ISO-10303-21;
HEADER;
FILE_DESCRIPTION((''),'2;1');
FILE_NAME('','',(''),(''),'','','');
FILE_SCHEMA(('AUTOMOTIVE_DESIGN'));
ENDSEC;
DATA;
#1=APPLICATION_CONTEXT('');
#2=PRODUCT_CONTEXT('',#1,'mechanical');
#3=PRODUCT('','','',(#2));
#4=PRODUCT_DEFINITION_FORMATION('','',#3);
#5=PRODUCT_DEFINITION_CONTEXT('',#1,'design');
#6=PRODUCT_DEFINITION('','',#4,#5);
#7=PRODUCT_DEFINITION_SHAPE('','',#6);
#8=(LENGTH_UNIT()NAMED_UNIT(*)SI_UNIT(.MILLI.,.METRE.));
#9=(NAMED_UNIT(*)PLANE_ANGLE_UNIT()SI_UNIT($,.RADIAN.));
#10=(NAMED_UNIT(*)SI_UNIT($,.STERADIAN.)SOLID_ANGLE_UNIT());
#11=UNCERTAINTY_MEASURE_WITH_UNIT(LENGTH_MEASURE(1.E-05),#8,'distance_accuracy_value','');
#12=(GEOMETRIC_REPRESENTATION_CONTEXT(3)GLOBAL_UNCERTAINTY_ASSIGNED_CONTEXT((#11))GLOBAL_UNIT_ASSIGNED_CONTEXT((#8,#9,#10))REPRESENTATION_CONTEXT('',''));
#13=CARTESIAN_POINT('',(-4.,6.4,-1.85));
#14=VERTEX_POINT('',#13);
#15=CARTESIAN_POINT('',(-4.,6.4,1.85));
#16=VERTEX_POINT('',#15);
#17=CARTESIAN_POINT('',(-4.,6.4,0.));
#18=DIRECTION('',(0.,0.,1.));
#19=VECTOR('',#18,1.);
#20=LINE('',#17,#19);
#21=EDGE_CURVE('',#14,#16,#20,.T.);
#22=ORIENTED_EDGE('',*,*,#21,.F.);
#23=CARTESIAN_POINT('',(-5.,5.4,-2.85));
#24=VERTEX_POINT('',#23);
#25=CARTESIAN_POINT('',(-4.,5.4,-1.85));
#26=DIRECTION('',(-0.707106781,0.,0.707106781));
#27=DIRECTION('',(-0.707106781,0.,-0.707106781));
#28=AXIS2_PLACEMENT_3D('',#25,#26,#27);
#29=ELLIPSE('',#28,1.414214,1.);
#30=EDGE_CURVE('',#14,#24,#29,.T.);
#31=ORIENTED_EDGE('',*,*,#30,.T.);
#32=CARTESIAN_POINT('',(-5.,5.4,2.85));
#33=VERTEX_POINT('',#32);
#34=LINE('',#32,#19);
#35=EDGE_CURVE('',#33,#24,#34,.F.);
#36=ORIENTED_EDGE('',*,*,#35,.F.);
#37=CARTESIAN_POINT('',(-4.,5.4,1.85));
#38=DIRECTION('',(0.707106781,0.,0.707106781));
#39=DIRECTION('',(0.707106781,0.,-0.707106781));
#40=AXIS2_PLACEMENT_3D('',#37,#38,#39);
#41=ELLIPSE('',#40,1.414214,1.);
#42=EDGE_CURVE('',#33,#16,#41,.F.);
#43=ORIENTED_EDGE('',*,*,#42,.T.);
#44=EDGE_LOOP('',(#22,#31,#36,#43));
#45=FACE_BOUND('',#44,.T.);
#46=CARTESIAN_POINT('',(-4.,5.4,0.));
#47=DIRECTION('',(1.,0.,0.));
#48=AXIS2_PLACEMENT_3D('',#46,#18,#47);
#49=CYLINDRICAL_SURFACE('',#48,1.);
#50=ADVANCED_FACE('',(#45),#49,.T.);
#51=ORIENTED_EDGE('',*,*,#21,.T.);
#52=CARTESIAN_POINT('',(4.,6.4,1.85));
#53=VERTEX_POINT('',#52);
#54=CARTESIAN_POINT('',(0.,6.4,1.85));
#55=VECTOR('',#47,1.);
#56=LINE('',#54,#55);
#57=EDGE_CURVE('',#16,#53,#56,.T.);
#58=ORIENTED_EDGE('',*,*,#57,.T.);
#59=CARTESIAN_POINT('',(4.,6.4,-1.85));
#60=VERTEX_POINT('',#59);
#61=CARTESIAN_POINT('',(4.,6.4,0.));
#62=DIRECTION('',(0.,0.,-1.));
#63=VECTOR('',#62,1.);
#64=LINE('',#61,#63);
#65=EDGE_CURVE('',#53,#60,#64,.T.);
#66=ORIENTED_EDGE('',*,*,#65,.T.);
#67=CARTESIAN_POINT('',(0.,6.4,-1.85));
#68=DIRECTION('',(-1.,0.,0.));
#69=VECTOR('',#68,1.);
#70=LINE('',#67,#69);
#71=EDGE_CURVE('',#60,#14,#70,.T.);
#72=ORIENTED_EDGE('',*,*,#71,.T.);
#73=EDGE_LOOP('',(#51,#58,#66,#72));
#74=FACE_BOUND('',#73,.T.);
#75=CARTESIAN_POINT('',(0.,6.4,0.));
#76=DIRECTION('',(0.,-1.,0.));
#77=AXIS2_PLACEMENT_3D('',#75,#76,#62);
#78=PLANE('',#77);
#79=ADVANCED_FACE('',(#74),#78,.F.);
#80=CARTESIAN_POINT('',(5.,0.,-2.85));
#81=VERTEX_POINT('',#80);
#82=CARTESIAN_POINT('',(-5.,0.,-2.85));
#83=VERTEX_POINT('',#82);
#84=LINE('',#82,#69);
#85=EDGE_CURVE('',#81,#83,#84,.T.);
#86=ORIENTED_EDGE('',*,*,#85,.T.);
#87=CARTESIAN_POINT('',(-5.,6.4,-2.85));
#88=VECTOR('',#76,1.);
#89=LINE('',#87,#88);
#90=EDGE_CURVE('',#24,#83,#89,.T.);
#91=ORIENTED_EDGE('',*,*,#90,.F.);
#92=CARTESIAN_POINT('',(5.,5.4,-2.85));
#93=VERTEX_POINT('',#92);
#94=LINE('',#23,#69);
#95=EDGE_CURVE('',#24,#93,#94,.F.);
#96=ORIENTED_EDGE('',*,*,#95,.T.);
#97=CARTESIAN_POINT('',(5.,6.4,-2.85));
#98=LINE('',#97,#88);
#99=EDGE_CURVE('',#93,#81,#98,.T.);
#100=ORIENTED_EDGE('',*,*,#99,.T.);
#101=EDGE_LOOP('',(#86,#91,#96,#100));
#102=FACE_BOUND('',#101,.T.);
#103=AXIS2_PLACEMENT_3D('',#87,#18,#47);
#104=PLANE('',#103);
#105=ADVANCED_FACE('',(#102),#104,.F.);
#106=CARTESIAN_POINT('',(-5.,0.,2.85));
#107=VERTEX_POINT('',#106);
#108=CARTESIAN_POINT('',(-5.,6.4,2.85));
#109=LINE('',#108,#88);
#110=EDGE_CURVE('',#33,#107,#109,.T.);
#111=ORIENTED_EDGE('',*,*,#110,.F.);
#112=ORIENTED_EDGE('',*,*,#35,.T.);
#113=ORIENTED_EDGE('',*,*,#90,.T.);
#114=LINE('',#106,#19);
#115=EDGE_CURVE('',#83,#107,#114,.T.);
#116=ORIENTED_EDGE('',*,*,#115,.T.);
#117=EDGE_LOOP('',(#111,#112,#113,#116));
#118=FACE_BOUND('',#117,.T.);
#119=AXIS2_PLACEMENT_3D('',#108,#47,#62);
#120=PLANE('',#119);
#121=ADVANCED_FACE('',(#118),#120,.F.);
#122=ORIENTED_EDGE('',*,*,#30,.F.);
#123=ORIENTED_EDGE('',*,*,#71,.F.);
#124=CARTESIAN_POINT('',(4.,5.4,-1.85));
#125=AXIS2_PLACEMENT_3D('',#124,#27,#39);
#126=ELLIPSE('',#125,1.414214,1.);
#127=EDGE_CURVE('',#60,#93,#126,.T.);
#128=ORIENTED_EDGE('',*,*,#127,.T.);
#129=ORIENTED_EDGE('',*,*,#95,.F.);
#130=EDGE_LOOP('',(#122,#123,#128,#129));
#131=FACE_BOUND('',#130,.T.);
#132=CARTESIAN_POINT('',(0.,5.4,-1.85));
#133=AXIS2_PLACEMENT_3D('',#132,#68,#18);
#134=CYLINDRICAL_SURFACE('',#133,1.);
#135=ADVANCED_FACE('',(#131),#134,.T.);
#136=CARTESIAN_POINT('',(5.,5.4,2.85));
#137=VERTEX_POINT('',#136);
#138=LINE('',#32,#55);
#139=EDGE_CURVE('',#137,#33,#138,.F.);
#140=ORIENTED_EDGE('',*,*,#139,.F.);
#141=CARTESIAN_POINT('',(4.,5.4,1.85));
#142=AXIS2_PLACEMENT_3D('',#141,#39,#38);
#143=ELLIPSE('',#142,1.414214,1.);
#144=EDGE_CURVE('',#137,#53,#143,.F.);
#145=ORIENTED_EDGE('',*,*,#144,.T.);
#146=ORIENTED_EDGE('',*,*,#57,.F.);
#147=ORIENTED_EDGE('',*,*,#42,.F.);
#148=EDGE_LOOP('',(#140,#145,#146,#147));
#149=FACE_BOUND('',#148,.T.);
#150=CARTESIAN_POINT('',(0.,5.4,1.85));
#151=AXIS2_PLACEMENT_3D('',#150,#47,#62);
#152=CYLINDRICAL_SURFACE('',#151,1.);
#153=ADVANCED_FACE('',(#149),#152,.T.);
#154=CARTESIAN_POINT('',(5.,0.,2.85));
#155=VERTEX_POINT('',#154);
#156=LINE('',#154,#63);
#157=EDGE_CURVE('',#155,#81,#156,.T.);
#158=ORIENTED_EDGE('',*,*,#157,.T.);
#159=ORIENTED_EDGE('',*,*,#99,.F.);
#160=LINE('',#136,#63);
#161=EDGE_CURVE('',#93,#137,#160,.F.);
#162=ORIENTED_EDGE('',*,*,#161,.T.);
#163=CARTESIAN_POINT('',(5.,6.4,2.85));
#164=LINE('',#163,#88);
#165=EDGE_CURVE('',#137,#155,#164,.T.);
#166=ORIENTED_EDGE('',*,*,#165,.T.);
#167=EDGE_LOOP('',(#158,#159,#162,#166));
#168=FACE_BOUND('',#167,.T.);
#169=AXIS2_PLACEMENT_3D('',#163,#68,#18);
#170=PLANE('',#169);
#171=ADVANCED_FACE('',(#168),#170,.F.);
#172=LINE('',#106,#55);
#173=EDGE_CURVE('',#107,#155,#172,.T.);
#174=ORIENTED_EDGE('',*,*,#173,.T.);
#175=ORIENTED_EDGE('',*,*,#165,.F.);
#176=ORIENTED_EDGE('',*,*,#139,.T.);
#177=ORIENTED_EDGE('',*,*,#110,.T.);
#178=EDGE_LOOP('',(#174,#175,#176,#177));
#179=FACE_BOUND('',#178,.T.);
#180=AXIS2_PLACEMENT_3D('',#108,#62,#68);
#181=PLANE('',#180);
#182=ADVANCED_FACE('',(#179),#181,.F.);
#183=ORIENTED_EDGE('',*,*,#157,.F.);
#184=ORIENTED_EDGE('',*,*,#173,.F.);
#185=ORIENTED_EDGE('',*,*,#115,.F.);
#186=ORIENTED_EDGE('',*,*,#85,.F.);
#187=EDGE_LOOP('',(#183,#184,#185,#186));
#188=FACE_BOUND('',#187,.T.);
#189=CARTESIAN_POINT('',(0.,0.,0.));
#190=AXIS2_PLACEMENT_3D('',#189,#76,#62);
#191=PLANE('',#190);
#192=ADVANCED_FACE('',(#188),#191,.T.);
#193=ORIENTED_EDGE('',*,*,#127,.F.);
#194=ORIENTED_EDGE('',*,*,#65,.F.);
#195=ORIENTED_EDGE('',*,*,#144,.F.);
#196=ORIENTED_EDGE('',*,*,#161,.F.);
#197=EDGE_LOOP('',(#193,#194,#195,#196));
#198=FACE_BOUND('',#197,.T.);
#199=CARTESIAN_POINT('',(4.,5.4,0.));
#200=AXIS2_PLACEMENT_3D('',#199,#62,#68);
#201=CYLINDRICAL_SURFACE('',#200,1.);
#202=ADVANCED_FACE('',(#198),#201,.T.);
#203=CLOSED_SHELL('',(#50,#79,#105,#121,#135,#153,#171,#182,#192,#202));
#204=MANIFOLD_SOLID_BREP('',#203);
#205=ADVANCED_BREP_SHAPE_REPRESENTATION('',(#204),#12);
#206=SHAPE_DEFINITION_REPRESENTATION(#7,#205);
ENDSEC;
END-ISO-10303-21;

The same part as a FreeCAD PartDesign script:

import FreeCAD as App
import Part
import Sketcher


def edges_at(feature, points):
    """Names of the edges that pass closest to the given points."""
    edges = feature.Shape.Edges
    near = lambda p: min(range(len(edges)), key=lambda i: edges[i].distToShape(Part.Vertex(*p))[0])
    return sorted({f"Edge{near(p) + 1}" for p in points})

doc = App.newDocument("Part")
body = doc.addObject("PartDesign::Body", "Body")

# Sketch on XZ plane
sketch1 = body.newObject("Sketcher::SketchObject", "Sketch")
sketch1.AttachmentSupport = (doc.getObject("XZ_Plane"), [""])
sketch1.MapMode = "FlatFace"
sketch1.addGeometry([
    Part.LineSegment(App.Vector(-5, -3, 0), App.Vector(-5, 3, 0)),
    Part.LineSegment(App.Vector(-5, 3, 0), App.Vector(5, 3, 0)),
    Part.LineSegment(App.Vector(5, 3, 0), App.Vector(5, -3, 0)),
    Part.LineSegment(App.Vector(5, -3, 0), App.Vector(-5, -3, 0)),
], False)
sketch1.addConstraint([
    Sketcher.Constraint("Coincident", 0, 2, 1, 1),
    Sketcher.Constraint("Coincident", 1, 2, 2, 1),
    Sketcher.Constraint("Coincident", 2, 2, 3, 1),
    Sketcher.Constraint("Coincident", 3, 2, 0, 1),
    Sketcher.Constraint("Vertical", 0),
    Sketcher.Constraint("Horizontal", 1),
    Sketcher.Constraint("Vertical", 2),
    Sketcher.Constraint("Horizontal", 3),
    Sketcher.Constraint("Symmetric", 0, 2, 2, 2, -1, 1),
    Sketcher.Constraint("DistanceX", 1, 1, 1, 2, 10.0),
    Sketcher.Constraint("DistanceY", 0, 1, 0, 2, 5.7),
])
pad1 = body.newObject("PartDesign::Pad", "Pad")
pad1.Profile = sketch1
pad1.Length = 6.4
pad1.Reversed = True
doc.recompute()

fillet = body.newObject("PartDesign::Fillet", "Fillet")
fillet.Base = (pad1, edges_at(pad1, [
    (-5, 6.4, 0),
    (0, 6.4, 2.85),
    (5, 6.4, 0),
    (0, 6.4, -2.85),
]))
fillet.Radius = 1

doc.recompute()
